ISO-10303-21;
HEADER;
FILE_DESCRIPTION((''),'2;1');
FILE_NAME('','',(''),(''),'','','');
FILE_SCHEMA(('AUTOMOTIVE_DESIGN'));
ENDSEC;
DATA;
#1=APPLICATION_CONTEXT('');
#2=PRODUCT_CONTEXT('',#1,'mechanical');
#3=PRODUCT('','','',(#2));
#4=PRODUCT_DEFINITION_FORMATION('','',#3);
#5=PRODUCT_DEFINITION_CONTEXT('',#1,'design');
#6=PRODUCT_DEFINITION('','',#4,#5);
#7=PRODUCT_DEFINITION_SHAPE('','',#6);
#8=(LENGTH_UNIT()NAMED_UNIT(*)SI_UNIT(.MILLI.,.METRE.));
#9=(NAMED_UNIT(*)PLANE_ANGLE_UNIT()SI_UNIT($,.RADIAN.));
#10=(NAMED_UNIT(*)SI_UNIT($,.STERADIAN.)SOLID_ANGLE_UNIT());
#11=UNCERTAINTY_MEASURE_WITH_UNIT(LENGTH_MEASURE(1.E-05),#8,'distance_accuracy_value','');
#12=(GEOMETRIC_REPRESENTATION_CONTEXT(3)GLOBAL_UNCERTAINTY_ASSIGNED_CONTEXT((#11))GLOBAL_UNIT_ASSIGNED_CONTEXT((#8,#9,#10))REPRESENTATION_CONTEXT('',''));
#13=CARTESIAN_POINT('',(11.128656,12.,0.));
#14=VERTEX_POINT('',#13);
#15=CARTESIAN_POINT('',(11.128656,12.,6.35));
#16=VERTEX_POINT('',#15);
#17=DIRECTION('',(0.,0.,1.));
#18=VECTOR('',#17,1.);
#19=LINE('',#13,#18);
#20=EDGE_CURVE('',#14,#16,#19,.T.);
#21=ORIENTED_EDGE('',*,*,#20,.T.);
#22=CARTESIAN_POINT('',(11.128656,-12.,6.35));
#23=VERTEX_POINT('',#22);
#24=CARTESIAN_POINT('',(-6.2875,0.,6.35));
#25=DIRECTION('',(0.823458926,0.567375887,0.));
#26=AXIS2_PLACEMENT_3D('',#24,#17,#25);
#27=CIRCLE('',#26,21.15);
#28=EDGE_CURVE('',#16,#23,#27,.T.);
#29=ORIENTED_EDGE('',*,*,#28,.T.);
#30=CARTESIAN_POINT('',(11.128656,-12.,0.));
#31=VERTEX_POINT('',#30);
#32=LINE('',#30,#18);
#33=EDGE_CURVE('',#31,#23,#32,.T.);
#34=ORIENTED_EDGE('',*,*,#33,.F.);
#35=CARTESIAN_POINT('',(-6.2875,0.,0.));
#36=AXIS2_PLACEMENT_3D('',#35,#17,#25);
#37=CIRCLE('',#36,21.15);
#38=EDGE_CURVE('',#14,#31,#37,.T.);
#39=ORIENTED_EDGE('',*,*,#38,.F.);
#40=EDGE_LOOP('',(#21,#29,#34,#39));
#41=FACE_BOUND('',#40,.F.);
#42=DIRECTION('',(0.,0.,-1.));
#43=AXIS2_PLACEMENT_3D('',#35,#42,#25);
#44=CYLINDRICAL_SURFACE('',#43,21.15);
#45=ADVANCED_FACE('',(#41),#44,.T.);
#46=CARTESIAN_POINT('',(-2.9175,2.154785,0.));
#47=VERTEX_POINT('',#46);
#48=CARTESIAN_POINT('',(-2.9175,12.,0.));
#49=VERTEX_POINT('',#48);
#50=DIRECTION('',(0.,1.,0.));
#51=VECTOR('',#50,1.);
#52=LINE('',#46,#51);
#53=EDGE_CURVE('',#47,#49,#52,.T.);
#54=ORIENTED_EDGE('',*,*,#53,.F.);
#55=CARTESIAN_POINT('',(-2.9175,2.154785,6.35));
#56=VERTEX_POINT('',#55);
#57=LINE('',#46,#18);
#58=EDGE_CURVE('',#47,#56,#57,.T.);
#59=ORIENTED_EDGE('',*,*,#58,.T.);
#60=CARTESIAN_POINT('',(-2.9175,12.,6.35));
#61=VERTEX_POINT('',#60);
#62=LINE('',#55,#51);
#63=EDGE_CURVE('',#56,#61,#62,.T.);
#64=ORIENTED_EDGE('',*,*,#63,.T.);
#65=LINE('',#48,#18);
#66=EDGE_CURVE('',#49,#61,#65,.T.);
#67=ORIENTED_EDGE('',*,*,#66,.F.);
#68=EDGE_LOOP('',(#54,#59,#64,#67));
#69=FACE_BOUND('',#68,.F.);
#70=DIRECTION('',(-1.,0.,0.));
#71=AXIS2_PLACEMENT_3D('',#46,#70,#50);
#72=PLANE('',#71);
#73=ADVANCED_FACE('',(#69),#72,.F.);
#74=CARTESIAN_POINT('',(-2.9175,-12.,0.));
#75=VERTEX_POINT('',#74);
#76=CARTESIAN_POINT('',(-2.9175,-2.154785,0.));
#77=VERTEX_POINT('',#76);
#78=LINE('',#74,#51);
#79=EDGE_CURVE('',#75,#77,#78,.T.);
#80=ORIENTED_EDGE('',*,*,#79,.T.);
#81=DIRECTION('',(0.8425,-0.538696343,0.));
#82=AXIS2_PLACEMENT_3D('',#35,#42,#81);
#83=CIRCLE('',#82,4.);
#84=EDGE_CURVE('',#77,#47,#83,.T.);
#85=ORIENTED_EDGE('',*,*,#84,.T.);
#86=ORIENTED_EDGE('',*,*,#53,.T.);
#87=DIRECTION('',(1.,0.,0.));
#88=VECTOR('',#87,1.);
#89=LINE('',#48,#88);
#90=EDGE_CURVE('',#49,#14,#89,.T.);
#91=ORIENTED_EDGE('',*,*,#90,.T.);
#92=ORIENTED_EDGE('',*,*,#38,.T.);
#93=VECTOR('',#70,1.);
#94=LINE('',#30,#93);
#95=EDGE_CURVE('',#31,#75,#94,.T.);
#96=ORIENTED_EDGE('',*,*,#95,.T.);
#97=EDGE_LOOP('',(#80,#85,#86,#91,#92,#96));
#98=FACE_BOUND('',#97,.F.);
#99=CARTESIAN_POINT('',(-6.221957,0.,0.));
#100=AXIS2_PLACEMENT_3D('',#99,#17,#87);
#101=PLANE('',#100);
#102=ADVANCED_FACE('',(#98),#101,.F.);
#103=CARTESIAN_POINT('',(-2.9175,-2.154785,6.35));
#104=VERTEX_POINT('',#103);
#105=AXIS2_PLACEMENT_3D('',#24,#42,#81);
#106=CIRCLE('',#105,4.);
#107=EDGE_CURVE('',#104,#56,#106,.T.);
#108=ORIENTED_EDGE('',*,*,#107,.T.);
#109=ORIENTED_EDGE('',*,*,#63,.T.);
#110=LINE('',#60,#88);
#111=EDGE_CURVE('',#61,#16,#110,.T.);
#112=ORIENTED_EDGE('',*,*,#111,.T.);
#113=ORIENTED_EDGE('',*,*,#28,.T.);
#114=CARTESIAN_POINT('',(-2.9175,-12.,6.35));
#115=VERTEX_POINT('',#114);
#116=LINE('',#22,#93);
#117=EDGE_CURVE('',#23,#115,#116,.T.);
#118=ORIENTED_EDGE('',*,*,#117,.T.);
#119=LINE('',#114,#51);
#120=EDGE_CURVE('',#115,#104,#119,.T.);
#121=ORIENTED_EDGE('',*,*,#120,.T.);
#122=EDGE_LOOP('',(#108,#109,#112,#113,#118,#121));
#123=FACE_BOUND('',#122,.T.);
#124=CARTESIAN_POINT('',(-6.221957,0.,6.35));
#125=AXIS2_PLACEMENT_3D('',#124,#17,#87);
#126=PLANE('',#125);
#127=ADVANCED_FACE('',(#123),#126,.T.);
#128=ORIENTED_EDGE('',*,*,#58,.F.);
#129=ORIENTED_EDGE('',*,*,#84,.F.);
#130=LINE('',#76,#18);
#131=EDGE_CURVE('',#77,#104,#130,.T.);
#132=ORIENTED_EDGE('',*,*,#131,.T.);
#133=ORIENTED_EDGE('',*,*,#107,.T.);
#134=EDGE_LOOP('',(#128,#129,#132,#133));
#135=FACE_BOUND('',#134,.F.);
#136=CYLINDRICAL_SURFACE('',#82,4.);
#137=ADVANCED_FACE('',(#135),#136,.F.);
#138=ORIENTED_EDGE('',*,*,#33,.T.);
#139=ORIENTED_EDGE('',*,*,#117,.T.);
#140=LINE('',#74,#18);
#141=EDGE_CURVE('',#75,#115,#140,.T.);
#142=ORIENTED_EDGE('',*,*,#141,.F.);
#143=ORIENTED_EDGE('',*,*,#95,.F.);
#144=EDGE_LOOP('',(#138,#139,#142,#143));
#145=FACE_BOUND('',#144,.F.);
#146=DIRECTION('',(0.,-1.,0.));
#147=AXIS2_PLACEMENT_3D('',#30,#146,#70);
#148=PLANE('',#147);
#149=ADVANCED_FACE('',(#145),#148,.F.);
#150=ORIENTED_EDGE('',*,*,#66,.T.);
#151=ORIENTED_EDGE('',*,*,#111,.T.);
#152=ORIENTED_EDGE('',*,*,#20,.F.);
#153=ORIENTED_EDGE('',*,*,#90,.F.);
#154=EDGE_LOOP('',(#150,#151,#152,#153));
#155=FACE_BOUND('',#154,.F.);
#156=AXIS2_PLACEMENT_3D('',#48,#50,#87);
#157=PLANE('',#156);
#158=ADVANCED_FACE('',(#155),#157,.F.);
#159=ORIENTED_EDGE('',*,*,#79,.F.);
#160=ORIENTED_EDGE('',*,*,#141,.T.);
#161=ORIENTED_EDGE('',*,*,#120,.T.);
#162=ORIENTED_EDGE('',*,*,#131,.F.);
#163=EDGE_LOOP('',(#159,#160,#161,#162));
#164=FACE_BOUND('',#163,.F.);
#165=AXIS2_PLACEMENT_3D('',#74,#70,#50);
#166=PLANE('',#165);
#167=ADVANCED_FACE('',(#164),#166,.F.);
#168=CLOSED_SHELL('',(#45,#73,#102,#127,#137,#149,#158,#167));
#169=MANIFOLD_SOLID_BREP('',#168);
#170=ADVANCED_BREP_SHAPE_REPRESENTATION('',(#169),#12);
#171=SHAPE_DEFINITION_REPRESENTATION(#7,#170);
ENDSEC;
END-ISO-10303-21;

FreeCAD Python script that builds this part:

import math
import FreeCAD as App
import Part
import Sketcher
Q = App.Units.Quantity

doc = App.newDocument("Part")
params = doc.addObject("Spreadsheet::Sheet", "Params")
for row, (alias, value) in enumerate([
    ("sketch1_radius", "4 mm"),
    ("sketch1_radius2", "21.15 mm"),
    ("pad1_length", "6.35 mm"),
], start=1):
    params.set(f"A{row}", alias)
    params.set(f"B{row}", "=" + value)
    params.setAlias(f"B{row}", alias)

body = doc.addObject("PartDesign::Body", "Body")

sketch1 = body.newObject("Sketcher::SketchObject", "Sketch")
sketch1.AttachmentSupport = (doc.getObject("XY_Plane"), [""])
sketch1.MapMode = "FlatFace"
sketch1.addGeometry([
    Part.LineSegment(App.Vector(-2.9175, 12, 0), App.Vector(11.128656, 12, 0)),
    Part.ArcOfCircle(Part.Circle(App.Vector(-6.2875, 0, 0), App.Vector(0, 0, 1), 21.15), math.radians(34.56744), math.radians(325.43256)),
    Part.LineSegment(App.Vector(11.128656, -12, 0), App.Vector(-2.9175, -12, 0)),
    Part.LineSegment(App.Vector(-2.9175, -12, 0), App.Vector(-2.9175, -2.154785, 0)),
    Part.ArcOfCircle(Part.Circle(App.Vector(-6.2875, 0, 0), App.Vector(0, 0, 1), 4), math.radians(32.594937), math.radians(327.405063)),
    Part.LineSegment(App.Vector(-2.9175, 2.154785, 0), App.Vector(-2.9175, 12, 0)),
], False)
sketch1.addConstraint([
    Sketcher.Constraint("Coincident", 0, 2, 1, 1),
    Sketcher.Constraint("Coincident", 1, 2, 2, 1),
    Sketcher.Constraint("Coincident", 2, 2, 3, 1),
    Sketcher.Constraint("Coincident", 3, 2, 4, 2),
    Sketcher.Constraint("Coincident", 4, 1, 5, 1),
    Sketcher.Constraint("Coincident", 5, 2, 0, 1),
    Sketcher.Constraint("Horizontal", 0),
    Sketcher.Constraint("Horizontal", 2),
    Sketcher.Constraint("Vertical", 3),
    Sketcher.Constraint("Vertical", 5),
    Sketcher.Constraint("Coincident", 4, 3, 1, 3),
    Sketcher.Constraint("Symmetric", 0, 2, 1, 2, -1),
    Sketcher.Constraint("Vertical", 3, 2, 4, 1),
    Sketcher.Constraint("Radius", 4, Q("4 mm")),
    Sketcher.Constraint("Radius", 1, Q("21.15 mm")),
    Sketcher.Constraint("DistanceY", -1, 1, 0, 2, Q("12 mm")),
    Sketcher.Constraint("DistanceX", 1, 3, 2, 2, Q("3.37 mm")),
    Sketcher.Constraint("DistanceX", 1, 3, -1, 1, Q("6.2875 mm")),
])
sketch1.setExpression("Constraints[13]", "Params.sketch1_radius")
sketch1.setExpression("Constraints[14]", "Params.sketch1_radius2")
pad1 = body.newObject("PartDesign::Pad", "Pad")
pad1.Profile = sketch1
pad1.setExpression("Length", "Params.pad1_length")

doc.recompute()
